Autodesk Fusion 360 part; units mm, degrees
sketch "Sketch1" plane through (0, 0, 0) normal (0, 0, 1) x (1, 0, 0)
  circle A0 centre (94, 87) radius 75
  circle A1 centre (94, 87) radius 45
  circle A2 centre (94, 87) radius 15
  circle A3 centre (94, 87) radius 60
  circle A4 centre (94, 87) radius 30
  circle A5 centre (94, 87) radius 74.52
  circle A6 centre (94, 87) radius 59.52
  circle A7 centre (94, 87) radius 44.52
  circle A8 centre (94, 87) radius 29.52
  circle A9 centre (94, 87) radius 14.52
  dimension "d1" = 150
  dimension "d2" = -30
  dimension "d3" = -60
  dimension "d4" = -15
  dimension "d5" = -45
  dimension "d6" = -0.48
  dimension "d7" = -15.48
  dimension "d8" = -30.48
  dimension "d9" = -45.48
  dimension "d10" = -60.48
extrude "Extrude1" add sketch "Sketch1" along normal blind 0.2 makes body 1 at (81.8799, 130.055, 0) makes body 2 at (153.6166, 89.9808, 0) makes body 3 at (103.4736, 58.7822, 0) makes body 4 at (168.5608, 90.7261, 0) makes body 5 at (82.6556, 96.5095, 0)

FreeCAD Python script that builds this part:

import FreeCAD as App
import Part
import Sketcher

doc = App.newDocument("Part")
body = doc.addObject("PartDesign::Body", "Body")
body.AllowCompound = True

# Sketch on XY plane
sketch1 = body.newObject("Sketcher::SketchObject", "Sketch")
sketch1.AttachmentSupport = (doc.getObject("XY_Plane"), [""])
sketch1.MapMode = "FlatFace"
sketch1.addGeometry(Part.Circle(App.Vector(94, 87, 0), App.Vector(0, 0, 1), 75), False)
sketch1.addGeometry(Part.Circle(App.Vector(94, 87, 0), App.Vector(0, 0, 1), 75), False)
sketch1.addGeometry(Part.Circle(App.Vector(94, 87, 0), App.Vector(0, 0, 1), 45), False)
sketch1.addGeometry(Part.Circle(App.Vector(94, 87, 0), App.Vector(0, 0, 1), 45), False)
sketch1.addGeometry(Part.Circle(App.Vector(94, 87, 0), App.Vector(0, 0, 1), 15), False)
sketch1.addGeometry(Part.Circle(App.Vector(94, 87, 0), App.Vector(0, 0, 1), 15), False)
sketch1.addGeometry(Part.Circle(App.Vector(94, 87, 0), App.Vector(0, 0, 1), 60), False)
sketch1.addGeometry(Part.Circle(App.Vector(94, 87, 0), App.Vector(0, 0, 1), 60), False)
sketch1.addGeometry(Part.Circle(App.Vector(94, 87, 0), App.Vector(0, 0, 1), 30), False)
sketch1.addGeometry(Part.Circle(App.Vector(94, 87, 0), App.Vector(0, 0, 1), 30), False)
sketch1.addConstraint(Sketcher.Constraint("Coincident", 1, 3, 0, 3))
sketch1.addConstraint(Sketcher.Constraint("Coincident", 2, 3, 0, 3))
sketch1.addConstraint(Sketcher.Constraint("Coincident", 3, 3, 0, 3))
sketch1.addConstraint(Sketcher.Constraint("Coincident", 4, 3, 0, 3))
sketch1.addConstraint(Sketcher.Constraint("Coincident", 5, 3, 0, 3))
sketch1.addConstraint(Sketcher.Constraint("Coincident", 6, 3, 0, 3))
sketch1.addConstraint(Sketcher.Constraint("Coincident", 7, 3, 0, 3))
sketch1.addConstraint(Sketcher.Constraint("Coincident", 8, 3, 0, 3))
sketch1.addConstraint(Sketcher.Constraint("Coincident", 9, 3, 0, 3))
sketch1.addConstraint(Sketcher.Constraint("Diameter", 0, 150.0))
sketch1.addConstraint(Sketcher.Constraint("Diameter", 2, 90.0))
sketch1.addConstraint(Sketcher.Constraint("Diameter", 4, 30.0))
sketch1.addConstraint(Sketcher.Constraint("Diameter", 6, 120.0))
sketch1.addConstraint(Sketcher.Constraint("Diameter", 8, 60.0))
sketch1.addConstraint(Sketcher.Constraint("Diameter", 1, 149.04))
sketch1.addConstraint(Sketcher.Constraint("Diameter", 3, 89.04))
sketch1.addConstraint(Sketcher.Constraint("Diameter", 5, 29.04))
sketch1.addConstraint(Sketcher.Constraint("Diameter", 7, 119.04))
sketch1.addConstraint(Sketcher.Constraint("Diameter", 9, 59.04))
sketch1.addConstraint(Sketcher.Constraint("DistanceX", -1, 1, 0, 3, 94.0))
sketch1.addConstraint(Sketcher.Constraint("DistanceY", -1, 1, 0, 3, 87.0))
pad1 = body.newObject("PartDesign::Pad", "Pad")
pad1.Profile = sketch1
pad1.Length = 0.2

doc.recompute()
